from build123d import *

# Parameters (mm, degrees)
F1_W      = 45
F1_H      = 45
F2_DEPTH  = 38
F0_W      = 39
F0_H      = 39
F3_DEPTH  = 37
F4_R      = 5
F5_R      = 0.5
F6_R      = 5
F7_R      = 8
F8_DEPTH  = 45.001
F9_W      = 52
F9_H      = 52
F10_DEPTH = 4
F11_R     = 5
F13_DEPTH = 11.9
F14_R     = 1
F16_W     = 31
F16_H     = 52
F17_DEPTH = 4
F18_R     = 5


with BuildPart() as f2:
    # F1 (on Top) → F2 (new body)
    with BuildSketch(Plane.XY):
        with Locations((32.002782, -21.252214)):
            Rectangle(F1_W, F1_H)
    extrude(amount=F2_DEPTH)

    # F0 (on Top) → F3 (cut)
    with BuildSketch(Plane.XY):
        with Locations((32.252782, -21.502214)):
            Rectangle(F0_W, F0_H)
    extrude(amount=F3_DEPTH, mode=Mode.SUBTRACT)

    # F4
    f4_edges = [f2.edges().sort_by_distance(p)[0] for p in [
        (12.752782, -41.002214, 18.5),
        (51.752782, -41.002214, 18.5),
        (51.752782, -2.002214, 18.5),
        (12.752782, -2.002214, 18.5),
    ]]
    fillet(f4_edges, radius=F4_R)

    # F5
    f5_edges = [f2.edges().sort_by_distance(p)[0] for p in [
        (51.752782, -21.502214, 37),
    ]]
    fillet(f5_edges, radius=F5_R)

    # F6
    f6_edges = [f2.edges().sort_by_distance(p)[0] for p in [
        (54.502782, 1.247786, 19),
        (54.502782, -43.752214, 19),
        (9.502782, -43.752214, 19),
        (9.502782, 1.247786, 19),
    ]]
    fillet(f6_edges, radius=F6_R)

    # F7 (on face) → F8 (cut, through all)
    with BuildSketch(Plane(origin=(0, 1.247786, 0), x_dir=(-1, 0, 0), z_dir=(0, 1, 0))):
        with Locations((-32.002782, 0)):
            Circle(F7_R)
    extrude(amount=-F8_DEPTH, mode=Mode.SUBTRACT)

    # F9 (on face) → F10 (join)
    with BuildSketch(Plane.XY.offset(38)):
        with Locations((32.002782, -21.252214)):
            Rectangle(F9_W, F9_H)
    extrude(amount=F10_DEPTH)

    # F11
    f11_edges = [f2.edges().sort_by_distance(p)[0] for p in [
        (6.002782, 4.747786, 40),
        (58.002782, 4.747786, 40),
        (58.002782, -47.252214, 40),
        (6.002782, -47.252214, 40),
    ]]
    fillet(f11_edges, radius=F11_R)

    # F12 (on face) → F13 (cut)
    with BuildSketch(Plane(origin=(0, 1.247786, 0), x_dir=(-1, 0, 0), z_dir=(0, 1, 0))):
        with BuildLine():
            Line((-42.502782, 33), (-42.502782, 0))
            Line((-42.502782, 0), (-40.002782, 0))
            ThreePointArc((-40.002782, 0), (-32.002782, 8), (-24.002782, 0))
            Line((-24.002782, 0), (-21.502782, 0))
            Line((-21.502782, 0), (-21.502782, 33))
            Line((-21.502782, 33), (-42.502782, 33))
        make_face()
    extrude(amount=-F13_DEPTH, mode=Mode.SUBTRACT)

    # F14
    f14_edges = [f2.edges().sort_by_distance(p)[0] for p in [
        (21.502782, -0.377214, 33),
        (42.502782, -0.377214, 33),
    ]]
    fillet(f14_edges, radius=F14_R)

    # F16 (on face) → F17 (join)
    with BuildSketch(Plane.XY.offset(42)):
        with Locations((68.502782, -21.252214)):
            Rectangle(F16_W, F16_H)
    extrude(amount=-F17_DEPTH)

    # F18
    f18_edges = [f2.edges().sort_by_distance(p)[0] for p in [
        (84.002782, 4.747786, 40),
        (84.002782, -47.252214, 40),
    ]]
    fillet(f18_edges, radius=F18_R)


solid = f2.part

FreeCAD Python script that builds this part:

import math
import FreeCAD as App
import Part
import Sketcher


def edges_at(feature, points):
    """Names of the edges that pass closest to the given points."""
    edges = feature.Shape.Edges
    near = lambda p: min(range(len(edges)), key=lambda i: edges[i].distToShape(Part.Vertex(*p))[0])
    return sorted({f"Edge{near(p) + 1}" for p in points})


def add_polygon(sketch, points):
    """Adds a closed chain of lines whose ends are joined by coincident constraints."""
    first, n = sketch.GeometryCount, len(points)
    for a, b in zip(points, points[1:] + points[:1]):
        sketch.addGeometry(Part.LineSegment(App.Vector(*a, 0), App.Vector(*b, 0)), False)
    for i in range(n):
        sketch.addConstraint(Sketcher.Constraint("Coincident", first + i, 2, first + (i + 1) % n, 1))

doc = App.newDocument("Part")
params = doc.addObject("Spreadsheet::Sheet", "Params")
for row, (alias, value) in enumerate([
    ("sketch1_width", "45 mm"),
    ("pad1_length", "38 mm"),
    ("sketch2_width", "39 mm"),
    ("pocket1_length", "37 mm"),
    ("fillet_radius", "5 mm"),
    ("fillet2_radius", "0.5 mm"),
    ("fillet3_radius", "5 mm"),
    ("sketch3_diameter", "16 mm"),
    ("sketch4_width", "52 mm"),
    ("pad2_length", "4 mm"),
    ("fillet4_radius", "5 mm"),
    ("sketch5_radius", "8 mm"),
    ("sketch5_width", "21 mm"),
    ("sketch5_height", "33 mm"),
    ("pocket3_length", "11.9 mm"),
    ("fillet5_radius", "1 mm"),
    ("sketch6_width", "31 mm"),
    ("sketch6_height", "52 mm"),
    ("pad3_length", "4 mm"),
    ("fillet6_radius", "5 mm"),
], start=1):
    params.set(f"A{row}", alias)
    params.set(f"B{row}", "=" + value)
    params.setAlias(f"B{row}", alias)

body = doc.addObject("PartDesign::Body", "Body")

# Sketch on XY plane
sketch1 = body.newObject("Sketcher::SketchObject", "Sketch")
sketch1.AttachmentSupport = (doc.getObject("XY_Plane"), [""])
sketch1.MapMode = "FlatFace"
add_polygon(sketch1, [(10, 1), (10, -44), (55, -44), (55, 1)])  # lines 0-3
sketch1.addConstraint([
    Sketcher.Constraint("Vertical", 0),
    Sketcher.Constraint("Horizontal", 1),
    Sketcher.Constraint("Vertical", 2),
    Sketcher.Constraint("Horizontal", 3),
    Sketcher.Constraint("Equal", 3, 0),
    Sketcher.Constraint("DistanceX", 1, 1, 1, 2, 45.0),
    Sketcher.Constraint("DistanceX", -1, 1, 0, 2, 9.502782),
    Sketcher.Constraint("DistanceY", 0, 2, -1, 1, 43.752214),
])
sketch1.setExpression("Constraints[9]", "Params.sketch1_width")
pad1 = body.newObject("PartDesign::Pad", "Pad")
pad1.Profile = sketch1
pad1.setExpression("Length", "Params.pad1_length")

# Sketch on XY plane
sketch2 = body.newObject("Sketcher::SketchObject", "Sketch001")
sketch2.AttachmentSupport = (doc.getObject("XY_Plane"), [""])
sketch2.MapMode = "FlatFace"
add_polygon(sketch2, [(13, -2), (13, -41), (52, -41), (52, -2)])  # lines 0-3
sketch2.addConstraint([
    Sketcher.Constraint("Vertical", 0),
    Sketcher.Constraint("Horizontal", 1),
    Sketcher.Constraint("Vertical", 2),
    Sketcher.Constraint("Horizontal", 3),
    Sketcher.Constraint("Equal", 3, 0),
    Sketcher.Constraint("DistanceX", 1, 1, 1, 2, 39.0),
    Sketcher.Constraint("DistanceX", -1, 1, 0, 2, 12.752782),
    Sketcher.Constraint("DistanceY", 0, 2, -1, 1, 41.002214),
])
sketch2.setExpression("Constraints[9]", "Params.sketch2_width")
pocket1 = body.newObject("PartDesign::Pocket", "Pocket")
pocket1.Profile = sketch2
pocket1.setExpression("Length", "Params.pocket1_length")
pocket1.Reversed = True
doc.recompute()

fillet = body.newObject("PartDesign::Fillet", "Fillet")
fillet.Base = (pocket1, edges_at(pocket1, [
    (12.753, -41.002, 18.5),
    (51.753, -41.002, 18.5),
    (51.753, -2.002, 18.5),
    (12.753, -2.002, 18.5),
]))
fillet.setExpression("Radius", "Params.fillet_radius")
doc.recompute()

fillet2 = body.newObject("PartDesign::Fillet", "Fillet001")
fillet2.Base = (fillet, edges_at(fillet, [(51.753, -21.502, 37)]))
fillet2.setExpression("Radius", "Params.fillet2_radius")
doc.recompute()

fillet3 = body.newObject("PartDesign::Fillet", "Fillet002")
fillet3.Base = (fillet2, edges_at(fillet2, [
    (54.503, 1.248, 19),
    (54.503, -43.752, 19),
    (9.503, -43.752, 19),
    (9.503, 1.248, 19),
]))
fillet3.setExpression("Radius", "Params.fillet3_radius")

# Sketch on XZ plane
sketch3 = body.newObject("Sketcher::SketchObject", "Sketch002")
sketch3.AttachmentSupport = (doc.getObject("XZ_Plane"), [""])
sketch3.MapMode = "FlatFace"
sketch3.AttachmentOffset = App.Placement(App.Vector(0, 0, -1.247786), App.Rotation())
sketch3.addGeometry(Part.Circle(App.Vector(32, 0, 0), App.Vector(0, 0, 1), 8), False)
sketch3.addConstraint([
    Sketcher.Constraint("PointOnObject", 0, 3, -1),
    Sketcher.Constraint("Diameter", 0, 16.0),
    Sketcher.Constraint("DistanceX", -1, 1, 0, 3, 32.002782),
])
sketch3.setExpression("Constraints[1]", "Params.sketch3_diameter")
pocket2 = body.newObject("PartDesign::Pocket", "Pocket001")
pocket2.Profile = sketch3
pocket2.Type = "ThroughAll"
pocket2.Reversed = True

# Sketch on XY plane
sketch4 = body.newObject("Sketcher::SketchObject", "Sketch003")
sketch4.AttachmentSupport = (doc.getObject("XY_Plane"), [""])
sketch4.MapMode = "FlatFace"
sketch4.AttachmentOffset = App.Placement(App.Vector(0, 0, 38), App.Rotation())
add_polygon(sketch4, [(6, 5), (6, -47), (58, -47), (58, 5)])  # lines 0-3
sketch4.addConstraint([
    Sketcher.Constraint("Vertical", 0),
    Sketcher.Constraint("Horizontal", 1),
    Sketcher.Constraint("Vertical", 2),
    Sketcher.Constraint("Horizontal", 3),
    Sketcher.Constraint("Equal", 3, 0),
    Sketcher.Constraint("DistanceX", 1, 1, 1, 2, 52.0),
    Sketcher.Constraint("DistanceX", -1, 1, 0, 2, 6.002782),
    Sketcher.Constraint("DistanceY", 0, 2, -1, 1, 47.252214),
])
sketch4.setExpression("Constraints[9]", "Params.sketch4_width")
pad2 = body.newObject("PartDesign::Pad", "Pad001")
pad2.Profile = sketch4
pad2.setExpression("Length", "Params.pad2_length")
doc.recompute()

fillet4 = body.newObject("PartDesign::Fillet", "Fillet003")
fillet4.Base = (pad2, edges_at(pad2, [
    (6.003, 4.748, 40),
    (58.003, 4.748, 40),
    (58.003, -47.252, 40),
    (6.003, -47.252, 40),
]))
fillet4.setExpression("Radius", "Params.fillet4_radius")

# Sketch on XZ plane
sketch5 = body.newObject("Sketcher::SketchObject", "Sketch004")
sketch5.AttachmentSupport = (doc.getObject("XZ_Plane"), [""])
sketch5.MapMode = "FlatFace"
sketch5.AttachmentOffset = App.Placement(App.Vector(0, 0, -1.247786), App.Rotation())
sketch5.addGeometry([
    Part.LineSegment(App.Vector(42.5, 33, 0), App.Vector(42.5, 0, 0)),  # 0
    Part.LineSegment(App.Vector(42.5, 0, 0), App.Vector(40, 0, 0)),  # 1
    Part.ArcOfCircle(Part.Circle(App.Vector(32, 0, 0), App.Vector(0, 0, 1), 8), math.radians(0), math.radians(180)),  # 2
    Part.LineSegment(App.Vector(24, 0, 0), App.Vector(21.5, 0, 0)),  # 3
    Part.LineSegment(App.Vector(21.5, 0, 0), App.Vector(21.5, 33, 0)),  # 4
    Part.LineSegment(App.Vector(21.5, 33, 0), App.Vector(42.5, 33, 0)),  # 5
], False)
sketch5.addConstraint([
    Sketcher.Constraint("Coincident", 0, 2, 1, 1),
    Sketcher.Constraint("Coincident", 1, 2, 2, 1),
    Sketcher.Constraint("Coincident", 2, 2, 3, 1),
    Sketcher.Constraint("Coincident", 3, 2, 4, 1),
    Sketcher.Constraint("Coincident", 4, 2, 5, 1),
    Sketcher.Constraint("Coincident", 5, 2, 0, 1),
    Sketcher.Constraint("Vertical", 0),
    Sketcher.Constraint("Horizontal", 1),
    Sketcher.Constraint("Horizontal", 3),
    Sketcher.Constraint("Vertical", 4),
    Sketcher.Constraint("Horizontal", 5),
    Sketcher.Constraint("PointOnObject", 2, 3, -1),
    Sketcher.Constraint("PointOnObject", 0, 2, -1),
    Sketcher.Constraint("PointOnObject", 2, 2, -1),
    Sketcher.Constraint("Equal", 1, 3),
    Sketcher.Constraint("Radius", 2, 8.0),
    Sketcher.Constraint("DistanceX", 5, 1, 5, 2, 21.0),
    Sketcher.Constraint("DistanceY", 0, 2, 0, 1, 33.0),
    Sketcher.Constraint("DistanceX", -1, 1, 3, 2, 21.502782),
])
sketch5.setExpression("Constraints[15]", "Params.sketch5_radius")
sketch5.setExpression("Constraints[16]", "Params.sketch5_width")
sketch5.setExpression("Constraints[17]", "Params.sketch5_height")
pocket3 = body.newObject("PartDesign::Pocket", "Pocket002")
pocket3.Profile = sketch5
pocket3.setExpression("Length", "Params.pocket3_length")
pocket3.Reversed = True
doc.recompute()

fillet5 = body.newObject("PartDesign::Fillet", "Fillet004")
fillet5.Base = (pocket3, edges_at(pocket3, [(21.503, -0.377, 33), (42.503, -0.377, 33)]))
fillet5.setExpression("Radius", "Params.fillet5_radius")

# Sketch on XY plane
sketch6 = body.newObject("Sketcher::SketchObject", "Sketch005")
sketch6.AttachmentSupport = (doc.getObject("XY_Plane"), [""])
sketch6.MapMode = "FlatFace"
sketch6.AttachmentOffset = App.Placement(App.Vector(0, 0, 42), App.Rotation())
add_polygon(sketch6, [(53, 5), (53, -47), (84, -47), (84, 5)])  # lines 0-3
sketch6.addConstraint([
    Sketcher.Constraint("Vertical", 0),
    Sketcher.Constraint("Horizontal", 1),
    Sketcher.Constraint("Vertical", 2),
    Sketcher.Constraint("Horizontal", 3),
    Sketcher.Constraint("DistanceX", 1, 1, 1, 2, 31.0),
    Sketcher.Constraint("DistanceY", 0, 2, 0, 1, 52.0),
    Sketcher.Constraint("DistanceX", -1, 1, 1, 2, 84.002782),
    Sketcher.Constraint("DistanceY", 0, 2, -1, 1, 47.252214),
])
sketch6.setExpression("Constraints[8]", "Params.sketch6_width")
sketch6.setExpression("Constraints[9]", "Params.sketch6_height")
pad3 = body.newObject("PartDesign::Pad", "Pad002")
pad3.Profile = sketch6
pad3.setExpression("Length", "Params.pad3_length")
pad3.Reversed = True
doc.recompute()

fillet6 = body.newObject("PartDesign::Fillet", "Fillet005")
fillet6.Base = (pad3, edges_at(pad3, [(84.003, 4.748, 40), (84.003, -47.252, 40)]))
fillet6.setExpression("Radius", "Params.fillet6_radius")

doc.recompute()
